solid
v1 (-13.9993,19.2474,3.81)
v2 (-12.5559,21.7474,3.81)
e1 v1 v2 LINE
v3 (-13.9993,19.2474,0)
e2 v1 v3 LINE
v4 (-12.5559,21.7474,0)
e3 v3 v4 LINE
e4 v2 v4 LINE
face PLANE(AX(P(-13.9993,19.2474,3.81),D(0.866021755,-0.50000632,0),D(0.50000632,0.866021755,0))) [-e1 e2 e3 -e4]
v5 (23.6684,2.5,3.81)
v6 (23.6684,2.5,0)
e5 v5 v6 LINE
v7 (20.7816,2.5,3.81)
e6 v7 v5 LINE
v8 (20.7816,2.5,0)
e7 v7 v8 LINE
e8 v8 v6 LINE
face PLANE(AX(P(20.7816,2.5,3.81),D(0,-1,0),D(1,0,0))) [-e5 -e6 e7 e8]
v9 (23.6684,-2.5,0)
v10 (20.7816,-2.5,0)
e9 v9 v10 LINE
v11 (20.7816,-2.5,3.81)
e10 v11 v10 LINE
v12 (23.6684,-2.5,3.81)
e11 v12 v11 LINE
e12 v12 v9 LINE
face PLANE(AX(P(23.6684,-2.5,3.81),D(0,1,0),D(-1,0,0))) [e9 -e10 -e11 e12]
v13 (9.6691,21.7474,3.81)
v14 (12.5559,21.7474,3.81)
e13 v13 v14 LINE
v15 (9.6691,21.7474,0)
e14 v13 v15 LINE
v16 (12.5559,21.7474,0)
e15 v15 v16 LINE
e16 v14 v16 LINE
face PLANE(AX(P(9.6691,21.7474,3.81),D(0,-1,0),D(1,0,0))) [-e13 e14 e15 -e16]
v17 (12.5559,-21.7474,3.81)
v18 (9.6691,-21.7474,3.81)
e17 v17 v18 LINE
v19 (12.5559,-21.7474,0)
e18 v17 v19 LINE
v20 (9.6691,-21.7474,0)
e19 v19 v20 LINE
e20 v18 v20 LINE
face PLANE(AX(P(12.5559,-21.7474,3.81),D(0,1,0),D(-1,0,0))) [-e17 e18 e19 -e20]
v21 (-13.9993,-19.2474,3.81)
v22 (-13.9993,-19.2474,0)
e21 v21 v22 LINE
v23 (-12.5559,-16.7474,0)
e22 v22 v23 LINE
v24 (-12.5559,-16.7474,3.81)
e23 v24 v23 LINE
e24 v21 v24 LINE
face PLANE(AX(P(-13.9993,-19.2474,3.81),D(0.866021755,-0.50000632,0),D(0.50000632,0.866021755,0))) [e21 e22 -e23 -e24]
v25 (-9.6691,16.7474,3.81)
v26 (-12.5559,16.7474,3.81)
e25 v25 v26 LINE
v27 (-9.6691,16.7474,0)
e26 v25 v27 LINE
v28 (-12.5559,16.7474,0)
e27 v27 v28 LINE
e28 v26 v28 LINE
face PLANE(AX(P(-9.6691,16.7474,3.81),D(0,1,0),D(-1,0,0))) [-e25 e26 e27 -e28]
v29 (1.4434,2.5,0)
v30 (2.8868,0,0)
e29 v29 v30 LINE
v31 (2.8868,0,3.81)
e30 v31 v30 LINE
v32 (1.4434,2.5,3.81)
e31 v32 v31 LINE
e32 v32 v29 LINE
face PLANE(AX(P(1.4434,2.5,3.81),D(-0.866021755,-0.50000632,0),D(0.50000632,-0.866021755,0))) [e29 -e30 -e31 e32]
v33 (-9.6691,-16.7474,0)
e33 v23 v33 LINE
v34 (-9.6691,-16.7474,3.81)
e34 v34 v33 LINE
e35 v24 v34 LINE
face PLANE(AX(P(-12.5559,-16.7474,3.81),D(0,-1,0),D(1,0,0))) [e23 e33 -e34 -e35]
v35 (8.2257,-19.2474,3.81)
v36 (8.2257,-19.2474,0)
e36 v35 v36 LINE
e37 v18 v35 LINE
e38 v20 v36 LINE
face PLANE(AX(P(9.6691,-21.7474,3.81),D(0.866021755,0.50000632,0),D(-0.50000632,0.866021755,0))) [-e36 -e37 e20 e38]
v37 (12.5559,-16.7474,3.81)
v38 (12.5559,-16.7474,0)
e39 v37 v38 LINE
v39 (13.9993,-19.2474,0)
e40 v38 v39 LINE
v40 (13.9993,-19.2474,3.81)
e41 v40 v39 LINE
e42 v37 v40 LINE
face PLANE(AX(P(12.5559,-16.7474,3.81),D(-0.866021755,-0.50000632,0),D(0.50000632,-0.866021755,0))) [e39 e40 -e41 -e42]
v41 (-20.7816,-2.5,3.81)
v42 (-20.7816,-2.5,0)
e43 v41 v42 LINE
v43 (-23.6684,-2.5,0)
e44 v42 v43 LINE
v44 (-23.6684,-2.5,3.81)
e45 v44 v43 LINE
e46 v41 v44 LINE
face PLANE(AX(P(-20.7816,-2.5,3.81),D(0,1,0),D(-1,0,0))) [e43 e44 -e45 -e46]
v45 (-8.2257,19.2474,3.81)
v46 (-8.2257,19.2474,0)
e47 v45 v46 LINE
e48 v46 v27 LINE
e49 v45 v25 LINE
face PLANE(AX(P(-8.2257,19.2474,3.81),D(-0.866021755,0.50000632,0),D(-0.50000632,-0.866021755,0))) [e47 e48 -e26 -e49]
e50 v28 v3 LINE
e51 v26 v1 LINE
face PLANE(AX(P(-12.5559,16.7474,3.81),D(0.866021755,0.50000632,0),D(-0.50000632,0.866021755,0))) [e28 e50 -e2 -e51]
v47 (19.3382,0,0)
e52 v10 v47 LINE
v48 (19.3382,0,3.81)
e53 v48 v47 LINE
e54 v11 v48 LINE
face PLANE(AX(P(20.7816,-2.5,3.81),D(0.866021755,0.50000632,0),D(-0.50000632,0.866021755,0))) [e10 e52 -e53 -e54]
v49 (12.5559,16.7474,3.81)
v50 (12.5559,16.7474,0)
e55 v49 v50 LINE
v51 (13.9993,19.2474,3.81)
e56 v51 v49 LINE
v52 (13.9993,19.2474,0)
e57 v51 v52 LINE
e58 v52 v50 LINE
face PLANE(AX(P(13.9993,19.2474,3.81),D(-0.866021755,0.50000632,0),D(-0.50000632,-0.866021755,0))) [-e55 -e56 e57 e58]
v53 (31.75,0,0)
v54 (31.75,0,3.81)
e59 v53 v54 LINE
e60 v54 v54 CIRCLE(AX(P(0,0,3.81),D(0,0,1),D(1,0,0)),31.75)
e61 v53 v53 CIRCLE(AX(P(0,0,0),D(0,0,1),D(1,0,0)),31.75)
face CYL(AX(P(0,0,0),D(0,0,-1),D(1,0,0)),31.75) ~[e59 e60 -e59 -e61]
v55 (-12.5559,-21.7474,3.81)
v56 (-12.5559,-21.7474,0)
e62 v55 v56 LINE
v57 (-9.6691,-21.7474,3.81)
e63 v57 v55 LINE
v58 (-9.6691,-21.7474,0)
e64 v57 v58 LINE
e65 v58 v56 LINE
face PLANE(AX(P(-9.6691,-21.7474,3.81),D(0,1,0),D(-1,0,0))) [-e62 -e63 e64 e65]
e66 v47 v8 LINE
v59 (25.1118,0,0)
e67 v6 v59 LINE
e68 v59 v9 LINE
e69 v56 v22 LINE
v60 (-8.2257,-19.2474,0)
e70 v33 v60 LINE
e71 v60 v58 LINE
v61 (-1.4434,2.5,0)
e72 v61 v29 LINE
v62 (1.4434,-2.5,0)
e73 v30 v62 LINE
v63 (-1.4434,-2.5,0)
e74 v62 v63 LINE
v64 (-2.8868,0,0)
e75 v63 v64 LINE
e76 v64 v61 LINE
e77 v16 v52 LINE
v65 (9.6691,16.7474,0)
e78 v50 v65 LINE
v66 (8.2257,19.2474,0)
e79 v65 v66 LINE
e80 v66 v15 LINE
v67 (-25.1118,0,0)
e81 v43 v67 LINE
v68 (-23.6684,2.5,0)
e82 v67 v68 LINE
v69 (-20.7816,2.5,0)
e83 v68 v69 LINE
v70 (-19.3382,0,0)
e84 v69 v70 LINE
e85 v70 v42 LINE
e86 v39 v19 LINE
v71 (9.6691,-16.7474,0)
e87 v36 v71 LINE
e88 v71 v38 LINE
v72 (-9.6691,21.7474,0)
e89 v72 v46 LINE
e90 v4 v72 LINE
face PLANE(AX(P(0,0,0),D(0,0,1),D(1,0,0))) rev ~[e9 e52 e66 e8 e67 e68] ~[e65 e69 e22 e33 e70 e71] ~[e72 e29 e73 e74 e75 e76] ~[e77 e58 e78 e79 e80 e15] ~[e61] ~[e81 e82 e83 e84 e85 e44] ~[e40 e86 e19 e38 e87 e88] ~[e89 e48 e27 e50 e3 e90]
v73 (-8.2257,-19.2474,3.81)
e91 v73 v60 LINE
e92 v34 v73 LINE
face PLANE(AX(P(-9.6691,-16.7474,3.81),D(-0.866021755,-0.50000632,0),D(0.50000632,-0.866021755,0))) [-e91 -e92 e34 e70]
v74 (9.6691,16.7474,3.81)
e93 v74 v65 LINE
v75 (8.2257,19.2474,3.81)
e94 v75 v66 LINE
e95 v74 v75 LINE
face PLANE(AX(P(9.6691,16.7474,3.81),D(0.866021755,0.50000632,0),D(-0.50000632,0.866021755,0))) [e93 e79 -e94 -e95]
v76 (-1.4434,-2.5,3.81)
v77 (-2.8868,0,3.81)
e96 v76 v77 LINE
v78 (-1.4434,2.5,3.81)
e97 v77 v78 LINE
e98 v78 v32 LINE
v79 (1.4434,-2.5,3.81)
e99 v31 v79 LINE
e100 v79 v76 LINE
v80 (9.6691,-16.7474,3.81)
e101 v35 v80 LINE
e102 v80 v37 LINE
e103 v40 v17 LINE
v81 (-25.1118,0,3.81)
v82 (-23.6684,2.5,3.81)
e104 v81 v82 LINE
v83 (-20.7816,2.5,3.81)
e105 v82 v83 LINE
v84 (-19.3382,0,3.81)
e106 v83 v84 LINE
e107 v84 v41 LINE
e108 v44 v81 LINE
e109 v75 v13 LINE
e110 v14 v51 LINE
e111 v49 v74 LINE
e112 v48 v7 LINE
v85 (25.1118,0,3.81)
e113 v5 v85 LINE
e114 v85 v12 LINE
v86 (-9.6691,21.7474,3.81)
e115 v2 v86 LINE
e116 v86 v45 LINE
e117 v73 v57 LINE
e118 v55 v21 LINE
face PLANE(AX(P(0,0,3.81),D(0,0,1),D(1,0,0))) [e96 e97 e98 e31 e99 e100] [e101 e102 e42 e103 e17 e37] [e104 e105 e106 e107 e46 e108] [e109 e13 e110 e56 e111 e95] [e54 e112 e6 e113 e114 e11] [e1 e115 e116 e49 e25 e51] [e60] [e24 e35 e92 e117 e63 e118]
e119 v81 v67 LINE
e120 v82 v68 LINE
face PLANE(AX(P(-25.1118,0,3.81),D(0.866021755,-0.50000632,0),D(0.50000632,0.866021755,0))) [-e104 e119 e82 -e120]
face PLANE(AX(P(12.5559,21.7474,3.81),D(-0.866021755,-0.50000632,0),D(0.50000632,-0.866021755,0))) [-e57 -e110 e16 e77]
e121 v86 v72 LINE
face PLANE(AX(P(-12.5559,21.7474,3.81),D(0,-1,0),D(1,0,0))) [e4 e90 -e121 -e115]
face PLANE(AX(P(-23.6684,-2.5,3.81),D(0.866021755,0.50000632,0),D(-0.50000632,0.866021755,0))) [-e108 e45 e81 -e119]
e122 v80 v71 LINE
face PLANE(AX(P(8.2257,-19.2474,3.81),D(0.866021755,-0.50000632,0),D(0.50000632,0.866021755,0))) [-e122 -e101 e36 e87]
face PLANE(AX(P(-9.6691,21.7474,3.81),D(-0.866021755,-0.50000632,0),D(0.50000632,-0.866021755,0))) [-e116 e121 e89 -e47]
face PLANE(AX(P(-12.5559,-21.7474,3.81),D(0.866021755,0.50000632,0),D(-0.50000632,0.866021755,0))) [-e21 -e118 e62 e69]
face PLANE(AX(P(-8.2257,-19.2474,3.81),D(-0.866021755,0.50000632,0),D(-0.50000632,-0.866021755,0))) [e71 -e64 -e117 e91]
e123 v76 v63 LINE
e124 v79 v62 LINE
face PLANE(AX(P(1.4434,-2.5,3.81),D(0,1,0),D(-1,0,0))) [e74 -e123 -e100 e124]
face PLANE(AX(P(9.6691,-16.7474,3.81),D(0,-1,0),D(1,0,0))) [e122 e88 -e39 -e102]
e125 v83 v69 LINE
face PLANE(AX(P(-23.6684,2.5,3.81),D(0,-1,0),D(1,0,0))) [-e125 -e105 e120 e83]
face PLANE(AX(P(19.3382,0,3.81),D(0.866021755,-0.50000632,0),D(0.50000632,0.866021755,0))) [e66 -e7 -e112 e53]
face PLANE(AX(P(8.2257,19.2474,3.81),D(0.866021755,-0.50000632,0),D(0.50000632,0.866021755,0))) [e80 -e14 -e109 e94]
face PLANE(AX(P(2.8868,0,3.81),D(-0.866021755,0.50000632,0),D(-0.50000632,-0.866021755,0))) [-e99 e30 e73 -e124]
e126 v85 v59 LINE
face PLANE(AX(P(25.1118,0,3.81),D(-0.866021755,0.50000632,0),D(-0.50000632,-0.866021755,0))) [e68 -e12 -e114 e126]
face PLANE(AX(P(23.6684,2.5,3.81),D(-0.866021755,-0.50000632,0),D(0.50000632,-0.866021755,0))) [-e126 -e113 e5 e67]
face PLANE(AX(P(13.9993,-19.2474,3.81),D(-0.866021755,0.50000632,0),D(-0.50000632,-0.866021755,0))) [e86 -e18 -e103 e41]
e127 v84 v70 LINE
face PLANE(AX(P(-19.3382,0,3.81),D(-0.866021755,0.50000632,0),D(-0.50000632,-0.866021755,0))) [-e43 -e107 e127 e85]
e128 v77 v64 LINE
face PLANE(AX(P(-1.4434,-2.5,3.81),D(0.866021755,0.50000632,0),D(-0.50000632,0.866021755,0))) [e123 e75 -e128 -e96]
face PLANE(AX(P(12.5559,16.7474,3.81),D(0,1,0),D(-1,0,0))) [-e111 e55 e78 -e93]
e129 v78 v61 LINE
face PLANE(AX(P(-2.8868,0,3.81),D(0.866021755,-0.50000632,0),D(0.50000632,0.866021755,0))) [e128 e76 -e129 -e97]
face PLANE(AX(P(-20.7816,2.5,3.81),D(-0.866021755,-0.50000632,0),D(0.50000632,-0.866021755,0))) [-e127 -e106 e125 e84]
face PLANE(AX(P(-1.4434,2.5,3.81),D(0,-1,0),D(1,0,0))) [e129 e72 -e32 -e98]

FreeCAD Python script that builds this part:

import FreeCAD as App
import Part
import Sketcher

V = App.Vector
Q = App.Units.Quantity

doc = App.newDocument("Part")
body = doc.addObject("PartDesign::Body", "Body")

sketch1 = body.newObject("Sketcher::SketchObject", "Sketch")
sketch1.AttachmentSupport = (doc.getObject("XY_Plane"), [""])
sketch1.MapMode = "FlatFace"
sketch1.addGeometry(Part.Circle(V(0, 0, 0), V(0, 0, 1), 31.75), False)
sketch1.addConstraint([
    Sketcher.Constraint("Coincident", 0, 3, -1, 1),
    Sketcher.Constraint("Diameter", 0, Q("2.5 in")),
])
pad1 = body.newObject("PartDesign::Pad", "Pad")
pad1.Profile = sketch1
pad1.Length = Q("0.15 in")

sketch2 = body.newObject("Sketcher::SketchObject", "Sketch001")
sketch2.AttachmentSupport = (doc.getObject("XY_Plane"), [""])
sketch2.MapMode = "FlatFace"
sketch2.AttachmentOffset = App.Placement(V(0, 0, 0.15 * 25.4), App.Rotation())
sketch2.addGeometry([
    Part.LineSegment(V(-13.9993, 19.2474, 0), V(-12.5559, 16.7474, 0)),
    Part.LineSegment(V(-12.5559, 16.7474, 0), V(-9.6691, 16.7474, 0)),
    Part.LineSegment(V(-9.6691, 16.7474, 0), V(-8.2257, 19.2474, 0)),
    Part.LineSegment(V(-8.2257, 19.2474, 0), V(-9.6691, 21.7474, 0)),
    Part.LineSegment(V(-9.6691, 21.7474, 0), V(-12.5559, 21.7474, 0)),
    Part.LineSegment(V(-12.5559, 21.7474, 0), V(-13.9993, 19.2474, 0)),
    Part.LineSegment(V(9.6691, 21.7474, 0), V(8.2257, 19.2474, 0)),
    Part.LineSegment(V(8.2257, 19.2474, 0), V(9.6691, 16.7474, 0)),
    Part.LineSegment(V(9.6691, 16.7474, 0), V(12.5559, 16.7474, 0)),
    Part.LineSegment(V(12.5559, 16.7474, 0), V(13.9993, 19.2474, 0)),
    Part.LineSegment(V(13.9993, 19.2474, 0), V(12.5559, 21.7474, 0)),
    Part.LineSegment(V(12.5559, 21.7474, 0), V(9.6691, 21.7474, 0)),
    Part.LineSegment(V(-19.3382, 0, 0), V(-20.7816, 2.5, 0)),
    Part.LineSegment(V(-20.7816, 2.5, 0), V(-23.6684, 2.5, 0)),
    Part.LineSegment(V(-23.6684, 2.5, 0), V(-25.1118, 0, 0)),
    Part.LineSegment(V(-25.1118, 0, 0), V(-23.6684, -2.5, 0)),
    Part.LineSegment(V(-23.6684, -2.5, 0), V(-20.7816, -2.5, 0)),
    Part.LineSegment(V(-20.7816, -2.5, 0), V(-19.3382, 0, 0)),
    Part.LineSegment(V(23.6684, 2.5, 0), V(20.7816, 2.5, 0)),
    Part.LineSegment(V(20.7816, 2.5, 0), V(19.3382, 0, 0)),
    Part.LineSegment(V(19.3382, 0, 0), V(20.7816, -2.5, 0)),
    Part.LineSegment(V(20.7816, -2.5, 0), V(23.6684, -2.5, 0)),
    Part.LineSegment(V(23.6684, -2.5, 0), V(25.1118, 0, 0)),
    Part.LineSegment(V(25.1118, 0, 0), V(23.6684, 2.5, 0)),
    Part.LineSegment(V(-9.6691, -16.7474, 0), V(-12.5559, -16.7474, 0)),
    Part.LineSegment(V(-12.5559, -16.7474, 0), V(-13.9993, -19.2474, 0)),
    Part.LineSegment(V(-13.9993, -19.2474, 0), V(-12.5559, -21.7474, 0)),
    Part.LineSegment(V(-12.5559, -21.7474, 0), V(-9.6691, -21.7474, 0)),
    Part.LineSegment(V(-9.6691, -21.7474, 0), V(-8.2257, -19.2474, 0)),
    Part.LineSegment(V(-8.2257, -19.2474, 0), V(-9.6691, -16.7474, 0)),
    Part.LineSegment(V(13.9993, -19.2474, 0), V(12.5559, -16.7474, 0)),
    Part.LineSegment(V(12.5559, -16.7474, 0), V(9.6691, -16.7474, 0)),
    Part.LineSegment(V(9.6691, -16.7474, 0), V(8.2257, -19.2474, 0)),
    Part.LineSegment(V(8.2257, -19.2474, 0), V(9.6691, -21.7474, 0)),
    Part.LineSegment(V(9.6691, -21.7474, 0), V(12.5559, -21.7474, 0)),
    Part.LineSegment(V(12.5559, -21.7474, 0), V(13.9993, -19.2474, 0)),
], False)
sketch2.addConstraint([
    Sketcher.Constraint("Coincident", 0, 2, 1, 1),
    Sketcher.Constraint("Coincident", 1, 2, 2, 1),
    Sketcher.Constraint("Coincident", 2, 2, 3, 1),
    Sketcher.Constraint("Coincident", 3, 2, 4, 1),
    Sketcher.Constraint("Coincident", 4, 2, 5, 1),
    Sketcher.Constraint("Coincident", 5, 2, 0, 1),
    Sketcher.Constraint("Coincident", 6, 2, 7, 1),
    Sketcher.Constraint("Coincident", 7, 2, 8, 1),
    Sketcher.Constraint("Coincident", 8, 2, 9, 1),
    Sketcher.Constraint("Coincident", 9, 2, 10, 1),
    Sketcher.Constraint("Coincident", 10, 2, 11, 1),
    Sketcher.Constraint("Coincident", 11, 2, 6, 1),
    Sketcher.Constraint("Coincident", 12, 2, 13, 1),
    Sketcher.Constraint("Coincident", 13, 2, 14, 1),
    Sketcher.Constraint("Coincident", 14, 2, 15, 1),
    Sketcher.Constraint("Coincident", 15, 2, 16, 1),
    Sketcher.Constraint("Coincident", 16, 2, 17, 1),
    Sketcher.Constraint("Coincident", 17, 2, 12, 1),
    Sketcher.Constraint("Coincident", 18, 2, 19, 1),
    Sketcher.Constraint("Coincident", 19, 2, 20, 1),
    Sketcher.Constraint("Coincident", 20, 2, 21, 1),
    Sketcher.Constraint("Coincident", 21, 2, 22, 1),
    Sketcher.Constraint("Coincident", 22, 2, 23, 1),
    Sketcher.Constraint("Coincident", 23, 2, 18, 1),
    Sketcher.Constraint("Coincident", 24, 2, 25, 1),
    Sketcher.Constraint("Coincident", 25, 2, 26, 1),
    Sketcher.Constraint("Coincident", 26, 2, 27, 1),
    Sketcher.Constraint("Coincident", 27, 2, 28, 1),
    Sketcher.Constraint("Coincident", 28, 2, 29, 1),
    Sketcher.Constraint("Coincident", 29, 2, 24, 1),
    Sketcher.Constraint("Coincident", 30, 2, 31, 1),
    Sketcher.Constraint("Coincident", 31, 2, 32, 1),
    Sketcher.Constraint("Coincident", 32, 2, 33, 1),
    Sketcher.Constraint("Coincident", 33, 2, 34, 1),
    Sketcher.Constraint("Coincident", 34, 2, 35, 1),
    Sketcher.Constraint("Coincident", 35, 2, 30, 1),
    Sketcher.Constraint("Horizontal", 1),
    Sketcher.Constraint("Horizontal", 4),
    Sketcher.Constraint("Horizontal", 8),
    Sketcher.Constraint("Horizontal", 11),
    Sketcher.Constraint("Horizontal", 13),
    Sketcher.Constraint("Horizontal", 16),
    Sketcher.Constraint("Horizontal", 18),
    Sketcher.Constraint("Horizontal", 21),
    Sketcher.Constraint("Horizontal", 24),
    Sketcher.Constraint("Horizontal", 27),
    Sketcher.Constraint("Horizontal", 31),
    Sketcher.Constraint("Horizontal", 34),
    Sketcher.Constraint("Symmetric", 16, 2, 18, 2, -1, 1),
    Sketcher.Constraint("Symmetric", 17, 2, 19, 2, -1, 1),
    Sketcher.Constraint("Symmetric", 12, 2, 20, 2, -1, 1),
    Sketcher.Constraint("Symmetric", 14, 2, 22, 2, -1, 1),
    Sketcher.Constraint("Symmetric", 8, 2, 24, 2, -1, 1),
    Sketcher.Constraint("Symmetric", 9, 2, 25, 2, -1, 1),
    Sketcher.Constraint("Symmetric", 10, 2, 26, 2, -1, 1),
    Sketcher.Constraint("Symmetric", 6, 2, 28, 2, -1, 1),
    Sketcher.Constraint("Symmetric", 0, 2, 30, 2, -1, 1),
    Sketcher.Constraint("Symmetric", 2, 2, 32, 2, -1, 1),
    Sketcher.Constraint("Symmetric", 3, 2, 33, 2, -1, 1),
    Sketcher.Constraint("Symmetric", 5, 2, 35, 2, -1, 1),
    Sketcher.Constraint("Symmetric", 2, 2, 6, 2, -2),
    Sketcher.Constraint("Symmetric", 1, 2, 7, 2, -2),
    Sketcher.Constraint("Symmetric", 5, 2, 9, 2, -2),
    Sketcher.Constraint("Symmetric", 4, 2, 10, 2, -2),
    Sketcher.Constraint("Symmetric", 12, 2, 18, 2, -2),
    Sketcher.Constraint("PointOnObject", 14, 2, -1),
    Sketcher.Constraint("PointOnObject", 17, 2, -1),
    Sketcher.Constraint("Parallel", 0, 3),
    Sketcher.Constraint("Parallel", 2, 5),
    Sketcher.Constraint("Parallel", 5, 6),
    Sketcher.Constraint("Parallel", 3, 7),
    Sketcher.Constraint("Parallel", 6, 9),
    Sketcher.Constraint("Parallel", 10, 12),
    Sketcher.Constraint("Parallel", 9, 14),
    Sketcher.Constraint("Parallel", 12, 15),
    Sketcher.Constraint("Parallel", 19, 22),
    Sketcher.Constraint("Parallel", 20, 23),
    Sketcher.Constraint("Parallel", 25, 28),
    Sketcher.Constraint("Parallel", 26, 29),
    Sketcher.Constraint("Parallel", 28, 32),
    Sketcher.Constraint("Parallel", 32, 35),
    Sketcher.Constraint("Horizontal", 2, 2, 5, 2),
    Sketcher.Constraint("Vertical", 1, 2, 3, 2),
    Sketcher.Constraint("Equal", 11, 13),
    Sketcher.Constraint("Equal", 10, 12),
    Sketcher.Constraint("Angle", 0, Q("-59.9996 deg")),
    Sketcher.Constraint("DistanceX", 0, 2, 7, 2, Q("0.875 in")),
    Sketcher.Constraint("DistanceY", 1, 2, 3, 2, 5.0),
    Sketcher.Constraint("DistanceX", 12, 2, 1, 2, Q("0.4375 in")),
    Sketcher.Constraint("DistanceX", 1, 1, 1, 2, 2.8868),
    Sketcher.Constraint("DistanceY", -1, 1, 3, 2, Q("0.8562 in")),
])
pocket1 = body.newObject("PartDesign::Pocket", "Pocket")
pocket1.Profile = sketch2
pocket1.Length = Q("0.15 in")

sketch3 = body.newObject("Sketcher::SketchObject", "Sketch002")
sketch3.AttachmentSupport = (doc.getObject("XY_Plane"), [""])
sketch3.MapMode = "FlatFace"
sketch3.AttachmentOffset = App.Placement(V(0, 0, 0.15 * 25.4), App.Rotation())
sketch3.addGeometry([
    Part.LineSegment(V(-1.4434, 2.5, 0), V(-2.8868, 0, 0)),
    Part.LineSegment(V(-2.8868, 0, 0), V(-1.4434, -2.5, 0)),
    Part.LineSegment(V(-1.4434, -2.5, 0), V(1.4434, -2.5, 0)),
    Part.LineSegment(V(1.4434, -2.5, 0), V(2.8868, 0, 0)),
    Part.LineSegment(V(2.8868, 0, 0), V(1.4434, 2.5, 0)),
    Part.LineSegment(V(1.4434, 2.5, 0), V(-1.4434, 2.5, 0)),
], False)
sketch3.addConstraint([
    Sketcher.Constraint("Coincident", 0, 2, 1, 1),
    Sketcher.Constraint("Coincident", 1, 2, 2, 1),
    Sketcher.Constraint("Coincident", 2, 2, 3, 1),
    Sketcher.Constraint("Coincident", 3, 2, 4, 1),
    Sketcher.Constraint("Coincident", 4, 2, 5, 1),
    Sketcher.Constraint("Coincident", 5, 2, 0, 1),
    Sketcher.Constraint("Horizontal", 2),
    Sketcher.Constraint("Horizontal", 5),
    Sketcher.Constraint("Symmetric", 0, 2, 3, 2, -1, 1),
    Sketcher.Constraint("Symmetric", 1, 2, 4, 2, -1, 1),
    Sketcher.Constraint("PointOnObject", 0, 2, -1),
    Sketcher.Constraint("Parallel", 0, 3),
    Sketcher.Constraint("Vertical", 2, 2, 4, 2),
    Sketcher.Constraint("Angle", 0, Q("-120.0004 deg")),
    Sketcher.Constraint("DistanceY", 2, 2, 4, 2, 5.0),
    Sketcher.Constraint("DistanceX", 2, 1, 2, 2, 2.8868),
])
pocket2 = body.newObject("PartDesign::Pocket", "Pocket001")
pocket2.Profile = sketch3
pocket2.Length = Q("0.15 in")

doc.recompute()
